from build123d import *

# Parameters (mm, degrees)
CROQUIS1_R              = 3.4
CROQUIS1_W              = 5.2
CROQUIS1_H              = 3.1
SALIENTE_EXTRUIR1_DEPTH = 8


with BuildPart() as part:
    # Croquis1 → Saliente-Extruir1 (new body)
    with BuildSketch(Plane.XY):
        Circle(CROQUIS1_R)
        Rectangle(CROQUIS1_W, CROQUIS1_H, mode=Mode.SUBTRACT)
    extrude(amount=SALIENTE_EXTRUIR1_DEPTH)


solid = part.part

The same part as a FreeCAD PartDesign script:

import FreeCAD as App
import Part
import Sketcher

V = App.Vector
Q = App.Units.Quantity


def add_polygon(sketch, points):
    """Adds a closed chain of lines whose ends are joined by coincident constraints."""
    first, n = sketch.GeometryCount, len(points)
    for a, b in zip(points, points[1:] + points[:1]):
        sketch.addGeometry(Part.LineSegment(App.Vector(*a, 0), App.Vector(*b, 0)), False)
    for i in range(n):
        sketch.addConstraint(Sketcher.Constraint("Coincident", first + i, 2, first + (i + 1) % n, 1))

doc = App.newDocument("Part")
params = doc.addObject("Spreadsheet::Sheet", "Params")
for row, (alias, value) in enumerate([
    ("sketch1_diameter", "6.8 mm"),
    ("sketch1_width", "5.2 mm"),
    ("sketch1_height", "3.1 mm"),
    ("pad1_length", "8 mm"),
], start=1):
    params.set(f"A{row}", alias)
    params.set(f"B{row}", "=" + value)
    params.setAlias(f"B{row}", alias)

body = doc.addObject("PartDesign::Body", "Body")

# Sketch on XY plane
sketch1 = body.newObject("Sketcher::SketchObject", "Sketch")
sketch1.AttachmentSupport = (doc.getObject("XY_Plane"), [""])
sketch1.MapMode = "FlatFace"
sketch1.addGeometry(Part.Circle(V(0, 0, 0), V(0, 0, 1), 3.4), False)  # 0
add_polygon(sketch1, [(2.6, -1.6), (-2.6, -1.6), (-2.6, 1.6), (2.6, 1.6)])  # lines 1-4
sketch1.addConstraint([
    Sketcher.Constraint("Horizontal", 1),
    Sketcher.Constraint("Vertical", 2),
    Sketcher.Constraint("Horizontal", 3),
    Sketcher.Constraint("Vertical", 4),
    Sketcher.Constraint("Coincident", 0, 3, -1, 1),
    Sketcher.Constraint("Symmetric", 1, 2, 3, 2, -1, 1),
    Sketcher.Constraint("Diameter", 0, Q("6.8 mm")),
    Sketcher.Constraint("DistanceX", 1, 2, 1, 1, Q("5.2 mm")),
    Sketcher.Constraint("DistanceY", 2, 1, 2, 2, Q("3.1 mm")),
])
sketch1.setExpression("Constraints[10]", "Params.sketch1_diameter")
sketch1.setExpression("Constraints[11]", "Params.sketch1_width")
sketch1.setExpression("Constraints[12]", "Params.sketch1_height")
pad1 = body.newObject("PartDesign::Pad", "Pad")
pad1.Profile = sketch1
pad1.setExpression("Length", "Params.pad1_length")

doc.recompute()
